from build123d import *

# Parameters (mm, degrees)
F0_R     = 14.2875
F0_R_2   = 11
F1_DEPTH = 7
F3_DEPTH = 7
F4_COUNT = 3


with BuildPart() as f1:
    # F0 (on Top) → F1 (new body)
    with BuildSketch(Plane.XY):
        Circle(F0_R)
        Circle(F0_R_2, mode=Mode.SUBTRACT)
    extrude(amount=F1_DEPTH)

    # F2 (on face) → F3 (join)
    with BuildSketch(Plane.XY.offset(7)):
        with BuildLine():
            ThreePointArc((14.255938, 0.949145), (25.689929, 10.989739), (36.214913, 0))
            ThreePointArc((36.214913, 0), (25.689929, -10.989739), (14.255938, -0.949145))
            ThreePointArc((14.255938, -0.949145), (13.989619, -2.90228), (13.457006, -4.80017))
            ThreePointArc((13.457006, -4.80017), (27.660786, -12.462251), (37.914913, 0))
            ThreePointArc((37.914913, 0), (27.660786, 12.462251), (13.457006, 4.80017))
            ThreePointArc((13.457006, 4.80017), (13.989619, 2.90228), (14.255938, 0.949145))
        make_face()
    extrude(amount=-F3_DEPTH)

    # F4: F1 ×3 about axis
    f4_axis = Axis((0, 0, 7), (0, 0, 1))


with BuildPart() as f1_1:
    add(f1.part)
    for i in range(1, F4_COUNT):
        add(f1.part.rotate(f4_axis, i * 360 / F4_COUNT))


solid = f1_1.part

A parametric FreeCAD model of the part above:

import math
import FreeCAD as App
import Part
import Sketcher
from FreeCAD import Vector
Q = App.Units.Quantity

doc = App.newDocument("Part")
body = doc.addObject("PartDesign::Body", "Body")

sketch1 = body.newObject("Sketcher::SketchObject", "Sketch")
sketch1.AttachmentSupport = (doc.getObject("XY_Plane"), [""])
sketch1.MapMode = "FlatFace"
sketch1.addGeometry(Part.Circle(Vector(0, 0, 0), Vector(0, 0, 1), 14.2875), False)
sketch1.addGeometry(Part.Circle(Vector(0, 0, 0), Vector(0, 0, 1), 11), False)
sketch1.addConstraint(Sketcher.Constraint("Coincident", 0, 3, -1, 1))
sketch1.addConstraint(Sketcher.Constraint("Coincident", 1, 3, -1, 1))
sketch1.addConstraint(Sketcher.Constraint("Diameter", 1, Q("22 mm")))
sketch1.addConstraint(Sketcher.Constraint("Diameter", 0, Q("28.575 mm")))
pad1 = body.newObject("PartDesign::Pad", "Pad")
pad1.Profile = sketch1
pad1.Length = 7

sketch2 = body.newObject("Sketcher::SketchObject", "Sketch001")
sketch2.AttachmentSupport = (doc.getObject("XY_Plane"), [""])
sketch2.MapMode = "FlatFace"
sketch2.AttachmentOffset = App.Placement(Vector(0, 0, 7), App.Rotation())
sketch2.addGeometry(Part.ArcOfCircle(Part.Circle(Vector(25.214913, 0, 0), Vector(0, 0, 1), 11), math.radians(0), math.radians(175.050026)), False)
sketch2.addGeometry(Part.ArcOfCircle(Part.Circle(Vector(25.214913, 0, 0), Vector(0, 0, 1), 11), math.radians(-175.050026), math.radians(0)), False)
sketch2.addGeometry(Part.ArcOfCircle(Part.Circle(Vector(0.000092, -0.000019, 0), Vector(0, 0, 1), 14.287407), math.radians(-19.631581), math.radians(-3.809019)), False)
sketch2.addGeometry(Part.ArcOfCircle(Part.Circle(Vector(25.214913, 0, 0), Vector(0, 0, 1), 12.7), math.radians(-157.792241), math.radians(-0.000002)), False)
sketch2.addGeometry(Part.ArcOfCircle(Part.Circle(Vector(25.214913, 0, 0), Vector(0, 0, 1), 12.7), math.radians(0.000002), math.radians(157.792241)), False)
sketch2.addGeometry(Part.ArcOfCircle(Part.Circle(Vector(0.000092, 0.000019, 0), Vector(0, 0, 1), 14.287407), math.radians(3.809019), math.radians(19.631581)), False)
sketch2.addConstraint(Sketcher.Constraint("Tangent", 0, 1, 1, 2))
sketch2.addConstraint(Sketcher.Constraint("Coincident", 1, 1, 2, 2))
sketch2.addConstraint(Sketcher.Constraint("Coincident", 2, 1, 3, 1))
sketch2.addConstraint(Sketcher.Constraint("Tangent", 3, 2, 4, 1))
sketch2.addConstraint(Sketcher.Constraint("Coincident", 4, 2, 5, 2))
sketch2.addConstraint(Sketcher.Constraint("Coincident", 5, 1, 0, 2))
sketch2.addConstraint(Sketcher.Constraint("Coincident", 3, 3, 0, 3))
sketch2.addConstraint(Sketcher.Constraint("Equal", 0, 1))
sketch2.addConstraint(Sketcher.Constraint("Equal", 3, 4))
sketch2.addConstraint(Sketcher.Constraint("Equal", 2, 5))
sketch2.addConstraint(Sketcher.Constraint("Symmetric", 2, 3, 5, 3, -1))
sketch2.addConstraint(Sketcher.Constraint("PointOnObject", 0, 3, -1))
sketch2.addConstraint(Sketcher.Constraint("PointOnObject", 0, 1, -1))
sketch2.addConstraint(Sketcher.Constraint("PointOnObject", 3, 2, -1))
sketch2.addConstraint(Sketcher.Constraint("Radius", 0, Q("11 mm")))
sketch2.addConstraint(Sketcher.Constraint("Radius", 3, Q("12.7 mm")))
sketch2.addConstraint(Sketcher.Constraint("Radius", 2, Q("14.287407 mm")))
sketch2.addConstraint(Sketcher.Constraint("DistanceX", -1, 1, 1, 1, Q("14.255938 mm")))
sketch2.addConstraint(Sketcher.Constraint("DistanceY", 2, 1, -1, 1, Q("4.80017 mm")))
sketch2.addConstraint(Sketcher.Constraint("DistanceX", 2, 3, 0, 3, Q("25.214821 mm")))
pad2 = body.newObject("PartDesign::Pad", "Pad001")
pad2.Profile = sketch2
pad2.Length = 7
pad2.Reversed = True
body2 = doc.addObject("PartDesign::Body", "Body001")
doc.recompute()

body2.BaseFeature = body
doc.recompute()

body3 = doc.addObject("PartDesign::Body", "Body002")
body3.BaseFeature = body
body3.Placement = App.Placement(Vector(0, 0, 0), App.Rotation(Vector(0, 0, 1), 120))
boolean = body2.newObject("PartDesign::Boolean", "Boolean")
boolean.Type = "Fuse"
boolean.addObjects([body3])
doc.recompute()

body.Placement = App.Placement(Vector(0, 0, 0), App.Rotation(Vector(0, 0, 1), 240))
boolean2 = body2.newObject("PartDesign::Boolean", "Boolean001")
boolean2.Type = "Fuse"
boolean2.addObjects([body])

doc.recompute()
